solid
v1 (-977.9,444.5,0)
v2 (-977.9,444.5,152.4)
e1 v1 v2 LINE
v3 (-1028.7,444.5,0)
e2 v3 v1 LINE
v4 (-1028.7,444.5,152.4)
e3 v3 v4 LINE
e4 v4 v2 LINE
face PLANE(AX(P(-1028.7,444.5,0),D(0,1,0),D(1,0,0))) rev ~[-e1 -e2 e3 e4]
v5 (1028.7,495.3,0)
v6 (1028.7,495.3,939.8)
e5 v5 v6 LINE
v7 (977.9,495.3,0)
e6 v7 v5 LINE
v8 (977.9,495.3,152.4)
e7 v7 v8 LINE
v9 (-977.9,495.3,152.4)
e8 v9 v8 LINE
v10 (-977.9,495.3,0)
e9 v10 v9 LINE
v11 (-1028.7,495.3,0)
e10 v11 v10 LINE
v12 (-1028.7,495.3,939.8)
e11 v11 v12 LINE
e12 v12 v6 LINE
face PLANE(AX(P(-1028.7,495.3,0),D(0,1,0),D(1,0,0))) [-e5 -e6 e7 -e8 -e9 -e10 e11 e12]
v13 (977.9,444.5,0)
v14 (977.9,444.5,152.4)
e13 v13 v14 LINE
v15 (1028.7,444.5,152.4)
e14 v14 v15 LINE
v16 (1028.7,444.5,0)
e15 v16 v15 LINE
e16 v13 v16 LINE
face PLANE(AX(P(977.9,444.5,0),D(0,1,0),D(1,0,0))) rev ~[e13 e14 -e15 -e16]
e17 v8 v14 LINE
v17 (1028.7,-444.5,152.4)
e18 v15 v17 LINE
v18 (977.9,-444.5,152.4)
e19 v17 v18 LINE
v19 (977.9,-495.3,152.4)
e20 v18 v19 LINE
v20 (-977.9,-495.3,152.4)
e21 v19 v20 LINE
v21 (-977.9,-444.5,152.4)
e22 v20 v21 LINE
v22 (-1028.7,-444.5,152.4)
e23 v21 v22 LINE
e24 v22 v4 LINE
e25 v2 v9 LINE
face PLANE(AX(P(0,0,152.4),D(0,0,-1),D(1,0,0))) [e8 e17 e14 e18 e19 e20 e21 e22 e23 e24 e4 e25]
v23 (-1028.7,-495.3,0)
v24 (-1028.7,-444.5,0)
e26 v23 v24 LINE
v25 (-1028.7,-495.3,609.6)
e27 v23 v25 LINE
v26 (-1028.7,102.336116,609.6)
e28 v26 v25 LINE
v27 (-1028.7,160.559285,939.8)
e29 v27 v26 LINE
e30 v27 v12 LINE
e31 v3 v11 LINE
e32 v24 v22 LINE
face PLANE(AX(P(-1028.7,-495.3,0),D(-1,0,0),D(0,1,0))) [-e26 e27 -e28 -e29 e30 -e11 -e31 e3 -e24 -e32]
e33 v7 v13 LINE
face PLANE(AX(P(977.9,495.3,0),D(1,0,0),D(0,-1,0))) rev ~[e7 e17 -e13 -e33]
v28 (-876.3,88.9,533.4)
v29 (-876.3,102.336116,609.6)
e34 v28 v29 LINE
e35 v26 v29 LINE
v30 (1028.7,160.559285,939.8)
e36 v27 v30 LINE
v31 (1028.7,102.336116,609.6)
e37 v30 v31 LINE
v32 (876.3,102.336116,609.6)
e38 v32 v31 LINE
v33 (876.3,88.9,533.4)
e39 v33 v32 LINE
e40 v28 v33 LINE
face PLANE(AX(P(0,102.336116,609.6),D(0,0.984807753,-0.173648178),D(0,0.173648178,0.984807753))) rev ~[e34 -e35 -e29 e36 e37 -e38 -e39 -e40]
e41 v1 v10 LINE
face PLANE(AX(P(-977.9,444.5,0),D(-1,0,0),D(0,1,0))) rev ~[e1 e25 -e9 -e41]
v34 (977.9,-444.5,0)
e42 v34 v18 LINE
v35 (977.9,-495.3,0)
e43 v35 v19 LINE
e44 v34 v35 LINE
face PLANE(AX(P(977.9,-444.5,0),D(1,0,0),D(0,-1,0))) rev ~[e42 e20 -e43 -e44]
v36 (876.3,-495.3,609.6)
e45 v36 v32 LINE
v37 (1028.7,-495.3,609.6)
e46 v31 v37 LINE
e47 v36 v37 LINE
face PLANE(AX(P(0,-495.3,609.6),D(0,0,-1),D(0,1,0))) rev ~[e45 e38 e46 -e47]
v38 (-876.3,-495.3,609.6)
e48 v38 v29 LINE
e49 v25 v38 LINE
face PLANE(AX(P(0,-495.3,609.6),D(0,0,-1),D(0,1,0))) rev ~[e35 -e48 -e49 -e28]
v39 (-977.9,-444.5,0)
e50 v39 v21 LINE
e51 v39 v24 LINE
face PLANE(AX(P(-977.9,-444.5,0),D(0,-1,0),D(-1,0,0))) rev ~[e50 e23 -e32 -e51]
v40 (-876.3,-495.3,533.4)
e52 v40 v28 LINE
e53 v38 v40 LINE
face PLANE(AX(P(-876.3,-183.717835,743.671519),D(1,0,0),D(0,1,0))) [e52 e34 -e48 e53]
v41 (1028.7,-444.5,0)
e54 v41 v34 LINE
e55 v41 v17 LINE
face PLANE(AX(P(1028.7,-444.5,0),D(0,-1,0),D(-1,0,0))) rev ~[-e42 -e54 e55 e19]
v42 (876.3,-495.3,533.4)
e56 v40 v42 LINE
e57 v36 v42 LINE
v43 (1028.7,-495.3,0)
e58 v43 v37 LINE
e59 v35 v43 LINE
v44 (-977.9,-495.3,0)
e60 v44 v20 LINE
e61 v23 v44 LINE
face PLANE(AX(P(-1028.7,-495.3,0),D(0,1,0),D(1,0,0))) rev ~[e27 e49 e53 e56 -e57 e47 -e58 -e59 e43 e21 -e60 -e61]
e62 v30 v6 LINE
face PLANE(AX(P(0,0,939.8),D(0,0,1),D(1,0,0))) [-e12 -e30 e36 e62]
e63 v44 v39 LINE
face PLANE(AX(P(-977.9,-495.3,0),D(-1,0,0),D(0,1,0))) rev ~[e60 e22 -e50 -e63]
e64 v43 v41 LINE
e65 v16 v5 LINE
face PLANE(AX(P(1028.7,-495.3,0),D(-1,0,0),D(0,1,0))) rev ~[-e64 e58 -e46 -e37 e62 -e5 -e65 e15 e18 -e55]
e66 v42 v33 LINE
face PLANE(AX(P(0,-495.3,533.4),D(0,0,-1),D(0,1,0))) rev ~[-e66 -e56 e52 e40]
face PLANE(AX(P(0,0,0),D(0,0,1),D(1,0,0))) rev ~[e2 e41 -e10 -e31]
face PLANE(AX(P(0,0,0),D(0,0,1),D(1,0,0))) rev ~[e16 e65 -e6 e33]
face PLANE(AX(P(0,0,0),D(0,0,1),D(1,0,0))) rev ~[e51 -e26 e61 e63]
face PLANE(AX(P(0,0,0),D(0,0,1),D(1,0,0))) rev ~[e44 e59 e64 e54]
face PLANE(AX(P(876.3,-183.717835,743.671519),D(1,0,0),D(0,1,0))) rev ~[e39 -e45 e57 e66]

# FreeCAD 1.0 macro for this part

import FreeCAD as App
import Part
import Sketcher
from FreeCAD import Vector
Q = App.Units.Quantity

doc = App.newDocument("Part")
body = doc.addObject("PartDesign::Body", "Body")

sketch1 = body.newObject("Sketcher::SketchObject", "Sketch")
sketch1.AttachmentSupport = (doc.getObject("XY_Plane"), [""])
sketch1.MapMode = "FlatFace"
sketch1.addGeometry(Part.LineSegment(Vector(-1029, 495, 0), Vector(-1029, -495, 0)), False)
sketch1.addGeometry(Part.LineSegment(Vector(-1029, -495, 0), Vector(1029, -495, 0)), False)
sketch1.addGeometry(Part.LineSegment(Vector(1029, -495, 0), Vector(1029, 495, 0)), False)
sketch1.addGeometry(Part.LineSegment(Vector(1029, 495, 0), Vector(-1029, 495, 0)), False)
sketch1.addConstraint(Sketcher.Constraint("Coincident", 0, 2, 1, 1))
sketch1.addConstraint(Sketcher.Constraint("Coincident", 1, 2, 2, 1))
sketch1.addConstraint(Sketcher.Constraint("Coincident", 2, 2, 3, 1))
sketch1.addConstraint(Sketcher.Constraint("Coincident", 3, 2, 0, 1))
sketch1.addConstraint(Sketcher.Constraint("Vertical", 0))
sketch1.addConstraint(Sketcher.Constraint("Horizontal", 1))
sketch1.addConstraint(Sketcher.Constraint("Vertical", 2))
sketch1.addConstraint(Sketcher.Constraint("Horizontal", 3))
sketch1.addConstraint(Sketcher.Constraint("Symmetric", 0, 2, 2, 2, -1, 1))
sketch1.addConstraint(Sketcher.Constraint("DistanceX", 1, 1, 1, 2, Q("81 in")))
sketch1.addConstraint(Sketcher.Constraint("DistanceY", 0, 2, 0, 1, Q("39 in")))
pad1 = body.newObject("PartDesign::Pad", "Pad")
pad1.Profile = sketch1
pad1.Length = Q("37 in")

sketch2 = body.newObject("Sketcher::SketchObject", "Sketch001")
sketch2.AttachmentSupport = (doc.getObject("YZ_Plane"), [""])
sketch2.MapMode = "FlatFace"
sketch2.addGeometry(Part.LineSegment(Vector(-495, 940, 0), Vector(-495, 533, 0)), False)
sketch2.addGeometry(Part.LineSegment(Vector(-495, 533, 0), Vector(89, 533, 0)), False)
sketch2.addGeometry(Part.LineSegment(Vector(89, 533, 0), Vector(161, 940, 0)), False)
sketch2.addGeometry(Part.LineSegment(Vector(161, 940, 0), Vector(-495, 940, 0)), False)
sketch2.addConstraint(Sketcher.Constraint("Coincident", 0, 2, 1, 1))
sketch2.addConstraint(Sketcher.Constraint("Coincident", 1, 2, 2, 1))
sketch2.addConstraint(Sketcher.Constraint("Coincident", 2, 2, 3, 1))
sketch2.addConstraint(Sketcher.Constraint("Coincident", 3, 2, 0, 1))
sketch2.addConstraint(Sketcher.Constraint("Vertical", 0))
sketch2.addConstraint(Sketcher.Constraint("Horizontal", 1))
sketch2.addConstraint(Sketcher.Constraint("Horizontal", 3))
sketch2.addConstraint(Sketcher.Constraint("DistanceX", 1, 1, 1, 2, Q("23 in")))
sketch2.addConstraint(Sketcher.Constraint("DistanceY", 0, 2, 0, 1, Q("16 in")))
sketch2.addConstraint(Sketcher.Constraint("DistanceY", -1, 1, 0, 2, Q("21 in")))
sketch2.addConstraint(Sketcher.Constraint("Angle", 2, Q("80 deg")))
sketch2.addConstraint(Sketcher.Constraint("DistanceX", 0, 2, -1, 1, Q("19.5 in")))
pocket1 = body.newObject("PartDesign::Pocket", "Pocket")
pocket1.Profile = sketch2
pocket1.Length = Q("69 in")
pocket1.Midplane = True

sketch3 = body.newObject("Sketcher::SketchObject", "Sketch002")
sketch3.AttachmentSupport = (doc.getObject("YZ_Plane"), [""])
sketch3.MapMode = "FlatFace"
sketch3.addGeometry(Part.LineSegment(Vector(-495, 940, 0), Vector(-495, 610, 0)), False)
sketch3.addGeometry(Part.LineSegment(Vector(-495, 610, 0), Vector(102, 610, 0)), False)
sketch3.addGeometry(Part.LineSegment(Vector(102, 610, 0), Vector(161, 940, 0)), False)
sketch3.addGeometry(Part.LineSegment(Vector(161, 940, 0), Vector(-495, 940, 0)), False)
sketch3.addConstraint(Sketcher.Constraint("Coincident", 0, 2, 1, 1))
sketch3.addConstraint(Sketcher.Constraint("Coincident", 1, 2, 2, 1))
sketch3.addConstraint(Sketcher.Constraint("Coincident", 2, 2, 3, 1))
sketch3.addConstraint(Sketcher.Constraint("Coincident", 3, 2, 0, 1))
sketch3.addConstraint(Sketcher.Constraint("Vertical", 0))
sketch3.addConstraint(Sketcher.Constraint("Horizontal", 1))
sketch3.addConstraint(Sketcher.Constraint("Horizontal", 3))
sketch3.addConstraint(Sketcher.Constraint("DistanceY", 0, 2, 0, 1, Q("13 in")))
sketch3.addConstraint(Sketcher.Constraint("DistanceY", -1, 1, 0, 2, Q("24 in")))
sketch3.addConstraint(Sketcher.Constraint("Angle", 2, Q("80 deg")))
sketch3.addConstraint(Sketcher.Constraint("DistanceX", 0, 2, -1, 1, Q("19.5 in")))
sketch3.addConstraint(Sketcher.Constraint("DistanceX", 1, 1, 1, 2, 597.636116))
pocket2 = body.newObject("PartDesign::Pocket", "Pocket001")
pocket2.Profile = sketch3
pocket2.Length = Q("10000 in")
pocket2.Midplane = True

sketch4 = body.newObject("Sketcher::SketchObject", "Sketch003")
sketch4.AttachmentSupport = (doc.getObject("XY_Plane"), [""])
sketch4.MapMode = "FlatFace"
sketch4.addGeometry(Part.LineSegment(Vector(978, -495, 0), Vector(-978, -495, 0)), False)
sketch4.addGeometry(Part.LineSegment(Vector(-978, -495, 0), Vector(-978, -444, 0)), False)
sketch4.addGeometry(Part.LineSegment(Vector(-978, -444, 0), Vector(-1029, -444, 0)), False)
sketch4.addGeometry(Part.LineSegment(Vector(-1029, -444, 0), Vector(-1029, 444, 0)), False)
sketch4.addGeometry(Part.LineSegment(Vector(-1029, 444, 0), Vector(-978, 444, 0)), False)
sketch4.addGeometry(Part.LineSegment(Vector(-978, 444, 0), Vector(-978, 495, 0)), False)
sketch4.addGeometry(Part.LineSegment(Vector(-978, 495, 0), Vector(978, 495, 0)), False)
sketch4.addGeometry(Part.LineSegment(Vector(978, 495, 0), Vector(978, 444, 0)), False)
sketch4.addGeometry(Part.LineSegment(Vector(978, 444, 0), Vector(1029, 444, 0)), False)
sketch4.addGeometry(Part.LineSegment(Vector(1029, 444, 0), Vector(1029, -444, 0)), False)
sketch4.addGeometry(Part.LineSegment(Vector(1029, -444, 0), Vector(978, -444, 0)), False)
sketch4.addGeometry(Part.LineSegment(Vector(978, -444, 0), Vector(978, -495, 0)), False)
sketch4.addConstraint(Sketcher.Constraint("Coincident", 0, 2, 1, 1))
sketch4.addConstraint(Sketcher.Constraint("Coincident", 1, 2, 2, 1))
sketch4.addConstraint(Sketcher.Constraint("Coincident", 2, 2, 3, 1))
sketch4.addConstraint(Sketcher.Constraint("Coincident", 3, 2, 4, 1))
sketch4.addConstraint(Sketcher.Constraint("Coincident", 4, 2, 5, 1))
sketch4.addConstraint(Sketcher.Constraint("Coincident", 5, 2, 6, 1))
sketch4.addConstraint(Sketcher.Constraint("Coincident", 6, 2, 7, 1))
sketch4.addConstraint(Sketcher.Constraint("Coincident", 7, 2, 8, 1))
sketch4.addConstraint(Sketcher.Constraint("Coincident", 8, 2, 9, 1))
sketch4.addConstraint(Sketcher.Constraint("Coincident", 9, 2, 10, 1))
sketch4.addConstraint(Sketcher.Constraint("Coincident", 10, 2, 11, 1))
sketch4.addConstraint(Sketcher.Constraint("Coincident", 11, 2, 0, 1))
sketch4.addConstraint(Sketcher.Constraint("Horizontal", 0))
sketch4.addConstraint(Sketcher.Constraint("Vertical", 1))
sketch4.addConstraint(Sketcher.Constraint("Horizontal", 2))
sketch4.addConstraint(Sketcher.Constraint("Vertical", 3))
sketch4.addConstraint(Sketcher.Constraint("Horizontal", 4))
sketch4.addConstraint(Sketcher.Constraint("Vertical", 5))
sketch4.addConstraint(Sketcher.Constraint("Horizontal", 6))
sketch4.addConstraint(Sketcher.Constraint("Vertical", 7))
sketch4.addConstraint(Sketcher.Constraint("Horizontal", 8))
sketch4.addConstraint(Sketcher.Constraint("Vertical", 9))
sketch4.addConstraint(Sketcher.Constraint("Horizontal", 10))
sketch4.addConstraint(Sketcher.Constraint("Vertical", 11))
sketch4.addConstraint(Sketcher.Constraint("Symmetric", 0, 2, 6, 2, -1, 1))
sketch4.addConstraint(Sketcher.Constraint("Symmetric", 2, 2, 8, 2, -1, 1))
sketch4.addConstraint(Sketcher.Constraint("Symmetric", 4, 2, 10, 2, -1, 1))
sketch4.addConstraint(Sketcher.Constraint("Symmetric", 4, 2, 7, 2, -2))
sketch4.addConstraint(Sketcher.Constraint("Equal", 10, 1))
sketch4.addConstraint(Sketcher.Constraint("DistanceX", 0, 2, 0, 1, Q("77 in")))
sketch4.addConstraint(Sketcher.Constraint("DistanceX", 2, 2, 2, 1, Q("2 in")))
sketch4.addConstraint(Sketcher.Constraint("DistanceY", 3, 1, 3, 2, Q("35 in")))
pocket3 = body.newObject("PartDesign::Pocket", "Pocket002")
pocket3.Profile = sketch4
pocket3.Length = Q("6 in")
pocket3.Reversed = True

doc.recompute()
